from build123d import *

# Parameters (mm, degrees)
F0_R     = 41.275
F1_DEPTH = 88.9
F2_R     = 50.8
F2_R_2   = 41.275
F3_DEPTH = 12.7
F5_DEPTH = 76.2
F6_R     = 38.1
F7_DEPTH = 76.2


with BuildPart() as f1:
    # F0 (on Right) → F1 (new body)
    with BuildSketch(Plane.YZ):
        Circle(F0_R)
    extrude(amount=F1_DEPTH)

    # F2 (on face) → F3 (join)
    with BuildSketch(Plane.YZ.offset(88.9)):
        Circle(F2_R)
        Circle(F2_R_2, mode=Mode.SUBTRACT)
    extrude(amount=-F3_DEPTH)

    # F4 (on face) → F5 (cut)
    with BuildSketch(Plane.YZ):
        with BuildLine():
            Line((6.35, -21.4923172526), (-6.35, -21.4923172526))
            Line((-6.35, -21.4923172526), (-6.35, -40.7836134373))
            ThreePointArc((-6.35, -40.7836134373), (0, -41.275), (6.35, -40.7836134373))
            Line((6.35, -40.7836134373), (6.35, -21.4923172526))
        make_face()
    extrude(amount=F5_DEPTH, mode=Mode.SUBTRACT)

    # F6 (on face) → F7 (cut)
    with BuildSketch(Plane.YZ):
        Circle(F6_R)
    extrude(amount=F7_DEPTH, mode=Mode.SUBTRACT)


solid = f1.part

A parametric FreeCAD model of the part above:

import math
import FreeCAD as App
import Part
import Sketcher
Q = App.Units.Quantity

doc = App.newDocument("Part")
body = doc.addObject("PartDesign::Body", "Body")

# Sketch on YZ plane
sketch1 = doc.addObject("Sketcher::SketchObject", "Sketch")
body.addObject(sketch1)
sketch1.AttachmentSupport = (doc.YZ_Plane, [""])
sketch1.MapMode = "FlatFace"
sketch1.addGeometry(Part.Circle(App.Vector(0, 0, 0), App.Vector(0, 0, 1), 41), False)
sketch1.addConstraint(Sketcher.Constraint("Coincident", 0, 3, -1, 1))
sketch1.addConstraint(Sketcher.Constraint("Diameter", 0, Q("3.25 in")))
pad1 = doc.addObject("PartDesign::Pad", "Pad")
body.addObject(pad1)
pad1.Profile = sketch1
pad1.Length = Q("3.5 in")

# Sketch on YZ plane
sketch2 = doc.addObject("Sketcher::SketchObject", "Sketch001")
body.addObject(sketch2)
sketch2.AttachmentSupport = (doc.YZ_Plane, [""])
sketch2.MapMode = "FlatFace"
sketch2.AttachmentOffset = App.Placement(App.Vector(0, 0, 3.5 * 25.4), App.Rotation())
sketch2.addGeometry(Part.Circle(App.Vector(0, 0, 0), App.Vector(0, 0, 1), 51), False)
sketch2.addGeometry(Part.Circle(App.Vector(0, 0, 0), App.Vector(0, 0, 1), 41), False)
sketch2.addConstraint(Sketcher.Constraint("Coincident", 0, 3, -1, 1))
sketch2.addConstraint(Sketcher.Constraint("Coincident", 1, 3, -1, 1))
sketch2.addConstraint(Sketcher.Constraint("Diameter", 0, Q("4 in")))
sketch2.addConstraint(Sketcher.Constraint("Diameter", 1, Q("3.25 in")))
pad2 = doc.addObject("PartDesign::Pad", "Pad001")
body.addObject(pad2)
pad2.Profile = sketch2
pad2.Length = Q("0.5 in")
pad2.Reversed = True

# Sketch on YZ plane
sketch3 = doc.addObject("Sketcher::SketchObject", "Sketch002")
body.addObject(sketch3)
sketch3.AttachmentSupport = (doc.YZ_Plane, [""])
sketch3.MapMode = "FlatFace"
sketch3.addGeometry(Part.LineSegment(App.Vector(6, -21, 0), App.Vector(-6, -21, 0)), False)
sketch3.addGeometry(Part.LineSegment(App.Vector(-6, -21, 0), App.Vector(-6, -41, 0)), False)
sketch3.addGeometry(Part.ArcOfCircle(Part.Circle(App.Vector(0, 0, 0), App.Vector(0, 0, 1), 41), math.radians(-98.85), math.radians(-81.15)), False)
sketch3.addGeometry(Part.LineSegment(App.Vector(6, -41, 0), App.Vector(6, -21, 0)), False)
sketch3.addConstraint(Sketcher.Constraint("Coincident", 0, 2, 1, 1))
sketch3.addConstraint(Sketcher.Constraint("Coincident", 1, 2, 2, 1))
sketch3.addConstraint(Sketcher.Constraint("Coincident", 2, 2, 3, 1))
sketch3.addConstraint(Sketcher.Constraint("Coincident", 3, 2, 0, 1))
sketch3.addConstraint(Sketcher.Constraint("Horizontal", 0))
sketch3.addConstraint(Sketcher.Constraint("Vertical", 1))
sketch3.addConstraint(Sketcher.Constraint("Vertical", 3))
sketch3.addConstraint(Sketcher.Constraint("Coincident", 2, 3, -1, 1))
sketch3.addConstraint(Sketcher.Constraint("Horizontal", 1, 2, 2, 2))
sketch3.addConstraint(Sketcher.Constraint("DistanceX", 0, 2, 0, 1, Q("0.5 in")))
sketch3.addConstraint(Sketcher.Constraint("Radius", 2, Q("1.625 in")))
sketch3.addConstraint(Sketcher.Constraint("DistanceY", 1, 2, 1, 1, Q("0.7594998 in")))
pocket1 = doc.addObject("PartDesign::Pocket", "Pocket")
body.addObject(pocket1)
pocket1.Profile = sketch3
pocket1.Length = Q("3 in")
pocket1.Reversed = True

# Sketch on YZ plane
sketch4 = doc.addObject("Sketcher::SketchObject", "Sketch003")
body.addObject(sketch4)
sketch4.AttachmentSupport = (doc.YZ_Plane, [""])
sketch4.MapMode = "FlatFace"
sketch4.addGeometry(Part.Circle(App.Vector(0, 0, 0), App.Vector(0, 0, 1), 38), False)
sketch4.addConstraint(Sketcher.Constraint("Coincident", 0, 3, -1, 1))
sketch4.addConstraint(Sketcher.Constraint("Diameter", 0, Q("3 in")))
pocket2 = doc.addObject("PartDesign::Pocket", "Pocket001")
body.addObject(pocket2)
pocket2.Profile = sketch4
pocket2.Length = Q("3 in")
pocket2.Reversed = True

doc.recompute()
